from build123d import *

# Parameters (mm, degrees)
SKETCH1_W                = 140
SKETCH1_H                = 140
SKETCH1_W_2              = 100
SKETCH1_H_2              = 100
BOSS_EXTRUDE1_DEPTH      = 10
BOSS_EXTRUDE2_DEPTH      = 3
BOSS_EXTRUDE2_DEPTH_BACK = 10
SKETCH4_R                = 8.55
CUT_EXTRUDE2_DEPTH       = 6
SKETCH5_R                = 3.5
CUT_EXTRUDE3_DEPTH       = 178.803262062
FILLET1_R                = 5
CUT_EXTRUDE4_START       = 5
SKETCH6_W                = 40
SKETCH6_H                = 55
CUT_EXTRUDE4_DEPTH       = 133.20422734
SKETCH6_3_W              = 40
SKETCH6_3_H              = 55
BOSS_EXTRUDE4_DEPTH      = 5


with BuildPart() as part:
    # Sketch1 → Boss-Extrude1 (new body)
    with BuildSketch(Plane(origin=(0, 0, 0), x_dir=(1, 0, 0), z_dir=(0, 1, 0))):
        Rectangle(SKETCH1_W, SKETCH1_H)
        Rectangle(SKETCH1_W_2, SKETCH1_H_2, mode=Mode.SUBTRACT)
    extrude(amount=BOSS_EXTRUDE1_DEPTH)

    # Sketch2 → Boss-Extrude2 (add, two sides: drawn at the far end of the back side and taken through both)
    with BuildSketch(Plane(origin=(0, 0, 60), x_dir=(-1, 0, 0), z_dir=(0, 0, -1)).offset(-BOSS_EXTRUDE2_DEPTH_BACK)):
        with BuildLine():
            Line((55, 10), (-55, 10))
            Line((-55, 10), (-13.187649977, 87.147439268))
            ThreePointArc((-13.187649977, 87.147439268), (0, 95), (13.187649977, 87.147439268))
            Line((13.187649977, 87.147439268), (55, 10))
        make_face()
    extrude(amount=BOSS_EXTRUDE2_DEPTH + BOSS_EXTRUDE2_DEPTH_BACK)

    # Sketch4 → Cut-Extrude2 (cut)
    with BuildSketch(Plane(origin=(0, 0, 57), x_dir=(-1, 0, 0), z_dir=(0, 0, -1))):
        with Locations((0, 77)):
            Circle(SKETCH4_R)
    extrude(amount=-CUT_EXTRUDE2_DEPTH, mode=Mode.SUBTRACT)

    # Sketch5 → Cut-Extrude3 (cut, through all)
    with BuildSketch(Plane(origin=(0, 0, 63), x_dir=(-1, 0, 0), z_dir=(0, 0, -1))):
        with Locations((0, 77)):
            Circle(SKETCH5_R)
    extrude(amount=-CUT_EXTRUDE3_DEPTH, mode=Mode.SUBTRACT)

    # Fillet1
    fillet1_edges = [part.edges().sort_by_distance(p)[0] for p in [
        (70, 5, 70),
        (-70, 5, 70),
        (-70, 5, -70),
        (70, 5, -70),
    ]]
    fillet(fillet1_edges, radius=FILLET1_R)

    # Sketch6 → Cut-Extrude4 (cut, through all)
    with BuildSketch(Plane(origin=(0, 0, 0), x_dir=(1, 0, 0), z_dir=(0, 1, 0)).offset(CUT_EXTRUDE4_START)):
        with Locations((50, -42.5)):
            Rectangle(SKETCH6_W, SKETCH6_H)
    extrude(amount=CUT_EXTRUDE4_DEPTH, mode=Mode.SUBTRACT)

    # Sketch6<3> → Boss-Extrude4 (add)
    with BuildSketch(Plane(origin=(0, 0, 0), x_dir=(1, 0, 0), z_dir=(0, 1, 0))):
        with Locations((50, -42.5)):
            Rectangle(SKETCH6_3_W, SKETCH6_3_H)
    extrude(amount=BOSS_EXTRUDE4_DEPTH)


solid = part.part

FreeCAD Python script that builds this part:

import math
import FreeCAD as App
import Part
import Sketcher


def edges_at(feature, points):
    """Names of the edges that pass closest to the given points."""
    edges = feature.Shape.Edges
    near = lambda p: min(range(len(edges)), key=lambda i: edges[i].distToShape(Part.Vertex(*p))[0])
    return sorted({f"Edge{near(p) + 1}" for p in points})


def add_polygon(sketch, points):
    """Adds a closed chain of lines whose ends are joined by coincident constraints."""
    first, n = sketch.GeometryCount, len(points)
    for a, b in zip(points, points[1:] + points[:1]):
        sketch.addGeometry(Part.LineSegment(App.Vector(*a, 0), App.Vector(*b, 0)), False)
    for i in range(n):
        sketch.addConstraint(Sketcher.Constraint("Coincident", first + i, 2, first + (i + 1) % n, 1))

doc = App.newDocument("Part")
body = doc.addObject("PartDesign::Body", "Body")

sketch1 = doc.addObject("Sketcher::SketchObject", "Sketch")
body.addObject(sketch1)
sketch1.AttachmentSupport = (doc.XZ_Plane, [""])
sketch1.MapMode = "FlatFace"
add_polygon(sketch1, [(-70, -70), (-70, 70), (70, 70), (70, -70)])
add_polygon(sketch1, [(50, 50), (-50, 50), (-50, -50), (50, -50)])
sketch1.addConstraint([
    Sketcher.Constraint("Vertical", 0),
    Sketcher.Constraint("Horizontal", 1),
    Sketcher.Constraint("Vertical", 2),
    Sketcher.Constraint("Horizontal", 3),
    Sketcher.Constraint("Horizontal", 4),
    Sketcher.Constraint("Vertical", 5),
    Sketcher.Constraint("Horizontal", 6),
    Sketcher.Constraint("Vertical", 7),
    Sketcher.Constraint("Symmetric", 0, 2, 2, 2, -1, 1),
    Sketcher.Constraint("Symmetric", 4, 2, 6, 2, -1, 1),
    Sketcher.Constraint("Equal", 3, 0),
    Sketcher.Constraint("Equal", 6, 5),
    Sketcher.Constraint("DistanceX", 1, 1, 1, 2, 140.0),
    Sketcher.Constraint("DistanceX", 4, 2, 4, 1, 100.0),
])
pad1 = doc.addObject("PartDesign::Pad", "Pad")
body.addObject(pad1)
pad1.Profile = sketch1
pad1.Length = 10
pad1.Reversed = True

sketch2 = doc.addObject("Sketcher::SketchObject", "Sketch001")
body.addObject(sketch2)
sketch2.AttachmentSupport = (doc.XY_Plane, [""])
sketch2.MapMode = "FlatFace"
sketch2.AttachmentOffset = App.Placement(App.Vector(0, 0, 60), App.Rotation())
sketch2.addGeometry([
    Part.LineSegment(App.Vector(55, 10, 0), App.Vector(-55, 10, 0)),
    Part.LineSegment(App.Vector(-55, 10, 0), App.Vector(-13, 87, 0)),
    Part.ArcOfCircle(Part.Circle(App.Vector(0, 80, 0), App.Vector(0, 0, 1), 15), math.radians(28), math.radians(152)),
    Part.LineSegment(App.Vector(13, 87, 0), App.Vector(55, 10, 0)),
], False)
sketch2.addConstraint([
    Sketcher.Constraint("Coincident", 0, 2, 1, 1),
    Sketcher.Constraint("Tangent", 1, 2, 2, 2),
    Sketcher.Constraint("Tangent", 2, 1, 3, 1),
    Sketcher.Constraint("Coincident", 3, 2, 0, 1),
    Sketcher.Constraint("Horizontal", 0),
    Sketcher.Constraint("Symmetric", 1, 2, 2, 1, -2),
    Sketcher.Constraint("Radius", 2, 15.0),
    Sketcher.Constraint("DistanceX", 0, 2, 0, 1, 110.0),
    Sketcher.Constraint("DistanceY", -1, 1, 2, 3, 80.0),
    Sketcher.Constraint("DistanceY", -1, 1, 0, 2, 10.0),
])
pad2 = doc.addObject("PartDesign::Pad", "Pad001")
body.addObject(pad2)
pad2.Profile = sketch2
pad2.Type = "TwoLengths"
pad2.Length = 3
pad2.Length2 = 10
pad2.Reversed = True

sketch3 = doc.addObject("Sketcher::SketchObject", "Sketch002")
body.addObject(sketch3)
sketch3.AttachmentSupport = (doc.XY_Plane, [""])
sketch3.MapMode = "FlatFace"
sketch3.AttachmentOffset = App.Placement(App.Vector(0, 0, 57), App.Rotation())
sketch3.addGeometry(Part.Circle(App.Vector(0, 77, 0), App.Vector(0, 0, 1), 9), False)
sketch3.addConstraint([
    Sketcher.Constraint("PointOnObject", 0, 3, -2),
    Sketcher.Constraint("Diameter", 0, 17.1),
    Sketcher.Constraint("DistanceY", -1, 1, 0, 3, 77.0),
])
pocket1 = doc.addObject("PartDesign::Pocket", "Pocket")
body.addObject(pocket1)
pocket1.Profile = sketch3
pocket1.Length = 6
pocket1.Reversed = True

sketch4 = doc.addObject("Sketcher::SketchObject", "Sketch003")
body.addObject(sketch4)
sketch4.AttachmentSupport = (doc.XY_Plane, [""])
sketch4.MapMode = "FlatFace"
sketch4.AttachmentOffset = App.Placement(App.Vector(0, 0, 63), App.Rotation())
sketch4.addGeometry(Part.Circle(App.Vector(0, 77, 0), App.Vector(0, 0, 1), 3.5), False)
sketch4.addConstraint([
    Sketcher.Constraint("PointOnObject", 0, 3, -2),
    Sketcher.Constraint("Diameter", 0, 7.0),
    Sketcher.Constraint("DistanceY", -1, 1, 0, 3, 77.0),
])
pocket2 = doc.addObject("PartDesign::Pocket", "Pocket001")
body.addObject(pocket2)
pocket2.Profile = sketch4
pocket2.Type = "ThroughAll"
pocket2.Reversed = True
doc.recompute()

fillet = doc.addObject("PartDesign::Fillet", "Fillet")
body.addObject(fillet)
fillet.Base = (pocket2, edges_at(pocket2, [
    (70, 5, 70),
    (-70, 5, 70),
    (-70, 5, -70),
    (70, 5, -70),
]))
fillet.Radius = 5

sketch5 = doc.addObject("Sketcher::SketchObject", "Sketch004")
body.addObject(sketch5)
sketch5.AttachmentSupport = (doc.XZ_Plane, [""])
sketch5.MapMode = "FlatFace"
sketch5.AttachmentOffset = App.Placement(App.Vector(0, 0, -5), App.Rotation())
add_polygon(sketch5, [(30, 15), (30, 70), (70, 70), (70, 15)])
sketch5.addConstraint([
    Sketcher.Constraint("Vertical", 0),
    Sketcher.Constraint("Horizontal", 1),
    Sketcher.Constraint("Vertical", 2),
    Sketcher.Constraint("Horizontal", 3),
    Sketcher.Constraint("DistanceX", 1, 1, 1, 2, 40.0),
    Sketcher.Constraint("DistanceY", 0, 1, 0, 2, 55.0),
    Sketcher.Constraint("DistanceX", -1, 1, 0, 2, 30.0),
    Sketcher.Constraint("DistanceY", -1, 1, 0, 2, 70.0),
])
pocket3 = doc.addObject("PartDesign::Pocket", "Pocket002")
body.addObject(pocket3)
pocket3.Profile = sketch5
pocket3.Type = "ThroughAll"

sketch6 = doc.addObject("Sketcher::SketchObject", "Sketch005")
body.addObject(sketch6)
sketch6.AttachmentSupport = (doc.XZ_Plane, [""])
sketch6.MapMode = "FlatFace"
add_polygon(sketch6, [(30, 15), (30, 70), (70, 70), (70, 15)])
sketch6.addConstraint([
    Sketcher.Constraint("Vertical", 0),
    Sketcher.Constraint("Horizontal", 1),
    Sketcher.Constraint("Vertical", 2),
    Sketcher.Constraint("Horizontal", 3),
    Sketcher.Constraint("DistanceX", 1, 1, 1, 2, 40.0),
    Sketcher.Constraint("DistanceY", 0, 1, 0, 2, 55.0),
    Sketcher.Constraint("DistanceX", -1, 1, 0, 2, 30.0),
    Sketcher.Constraint("DistanceY", -1, 1, 0, 2, 70.0),
])
pad3 = doc.addObject("PartDesign::Pad", "Pad002")
body.addObject(pad3)
pad3.Profile = sketch6
pad3.Length = 5
pad3.Reversed = True

doc.recompute()
